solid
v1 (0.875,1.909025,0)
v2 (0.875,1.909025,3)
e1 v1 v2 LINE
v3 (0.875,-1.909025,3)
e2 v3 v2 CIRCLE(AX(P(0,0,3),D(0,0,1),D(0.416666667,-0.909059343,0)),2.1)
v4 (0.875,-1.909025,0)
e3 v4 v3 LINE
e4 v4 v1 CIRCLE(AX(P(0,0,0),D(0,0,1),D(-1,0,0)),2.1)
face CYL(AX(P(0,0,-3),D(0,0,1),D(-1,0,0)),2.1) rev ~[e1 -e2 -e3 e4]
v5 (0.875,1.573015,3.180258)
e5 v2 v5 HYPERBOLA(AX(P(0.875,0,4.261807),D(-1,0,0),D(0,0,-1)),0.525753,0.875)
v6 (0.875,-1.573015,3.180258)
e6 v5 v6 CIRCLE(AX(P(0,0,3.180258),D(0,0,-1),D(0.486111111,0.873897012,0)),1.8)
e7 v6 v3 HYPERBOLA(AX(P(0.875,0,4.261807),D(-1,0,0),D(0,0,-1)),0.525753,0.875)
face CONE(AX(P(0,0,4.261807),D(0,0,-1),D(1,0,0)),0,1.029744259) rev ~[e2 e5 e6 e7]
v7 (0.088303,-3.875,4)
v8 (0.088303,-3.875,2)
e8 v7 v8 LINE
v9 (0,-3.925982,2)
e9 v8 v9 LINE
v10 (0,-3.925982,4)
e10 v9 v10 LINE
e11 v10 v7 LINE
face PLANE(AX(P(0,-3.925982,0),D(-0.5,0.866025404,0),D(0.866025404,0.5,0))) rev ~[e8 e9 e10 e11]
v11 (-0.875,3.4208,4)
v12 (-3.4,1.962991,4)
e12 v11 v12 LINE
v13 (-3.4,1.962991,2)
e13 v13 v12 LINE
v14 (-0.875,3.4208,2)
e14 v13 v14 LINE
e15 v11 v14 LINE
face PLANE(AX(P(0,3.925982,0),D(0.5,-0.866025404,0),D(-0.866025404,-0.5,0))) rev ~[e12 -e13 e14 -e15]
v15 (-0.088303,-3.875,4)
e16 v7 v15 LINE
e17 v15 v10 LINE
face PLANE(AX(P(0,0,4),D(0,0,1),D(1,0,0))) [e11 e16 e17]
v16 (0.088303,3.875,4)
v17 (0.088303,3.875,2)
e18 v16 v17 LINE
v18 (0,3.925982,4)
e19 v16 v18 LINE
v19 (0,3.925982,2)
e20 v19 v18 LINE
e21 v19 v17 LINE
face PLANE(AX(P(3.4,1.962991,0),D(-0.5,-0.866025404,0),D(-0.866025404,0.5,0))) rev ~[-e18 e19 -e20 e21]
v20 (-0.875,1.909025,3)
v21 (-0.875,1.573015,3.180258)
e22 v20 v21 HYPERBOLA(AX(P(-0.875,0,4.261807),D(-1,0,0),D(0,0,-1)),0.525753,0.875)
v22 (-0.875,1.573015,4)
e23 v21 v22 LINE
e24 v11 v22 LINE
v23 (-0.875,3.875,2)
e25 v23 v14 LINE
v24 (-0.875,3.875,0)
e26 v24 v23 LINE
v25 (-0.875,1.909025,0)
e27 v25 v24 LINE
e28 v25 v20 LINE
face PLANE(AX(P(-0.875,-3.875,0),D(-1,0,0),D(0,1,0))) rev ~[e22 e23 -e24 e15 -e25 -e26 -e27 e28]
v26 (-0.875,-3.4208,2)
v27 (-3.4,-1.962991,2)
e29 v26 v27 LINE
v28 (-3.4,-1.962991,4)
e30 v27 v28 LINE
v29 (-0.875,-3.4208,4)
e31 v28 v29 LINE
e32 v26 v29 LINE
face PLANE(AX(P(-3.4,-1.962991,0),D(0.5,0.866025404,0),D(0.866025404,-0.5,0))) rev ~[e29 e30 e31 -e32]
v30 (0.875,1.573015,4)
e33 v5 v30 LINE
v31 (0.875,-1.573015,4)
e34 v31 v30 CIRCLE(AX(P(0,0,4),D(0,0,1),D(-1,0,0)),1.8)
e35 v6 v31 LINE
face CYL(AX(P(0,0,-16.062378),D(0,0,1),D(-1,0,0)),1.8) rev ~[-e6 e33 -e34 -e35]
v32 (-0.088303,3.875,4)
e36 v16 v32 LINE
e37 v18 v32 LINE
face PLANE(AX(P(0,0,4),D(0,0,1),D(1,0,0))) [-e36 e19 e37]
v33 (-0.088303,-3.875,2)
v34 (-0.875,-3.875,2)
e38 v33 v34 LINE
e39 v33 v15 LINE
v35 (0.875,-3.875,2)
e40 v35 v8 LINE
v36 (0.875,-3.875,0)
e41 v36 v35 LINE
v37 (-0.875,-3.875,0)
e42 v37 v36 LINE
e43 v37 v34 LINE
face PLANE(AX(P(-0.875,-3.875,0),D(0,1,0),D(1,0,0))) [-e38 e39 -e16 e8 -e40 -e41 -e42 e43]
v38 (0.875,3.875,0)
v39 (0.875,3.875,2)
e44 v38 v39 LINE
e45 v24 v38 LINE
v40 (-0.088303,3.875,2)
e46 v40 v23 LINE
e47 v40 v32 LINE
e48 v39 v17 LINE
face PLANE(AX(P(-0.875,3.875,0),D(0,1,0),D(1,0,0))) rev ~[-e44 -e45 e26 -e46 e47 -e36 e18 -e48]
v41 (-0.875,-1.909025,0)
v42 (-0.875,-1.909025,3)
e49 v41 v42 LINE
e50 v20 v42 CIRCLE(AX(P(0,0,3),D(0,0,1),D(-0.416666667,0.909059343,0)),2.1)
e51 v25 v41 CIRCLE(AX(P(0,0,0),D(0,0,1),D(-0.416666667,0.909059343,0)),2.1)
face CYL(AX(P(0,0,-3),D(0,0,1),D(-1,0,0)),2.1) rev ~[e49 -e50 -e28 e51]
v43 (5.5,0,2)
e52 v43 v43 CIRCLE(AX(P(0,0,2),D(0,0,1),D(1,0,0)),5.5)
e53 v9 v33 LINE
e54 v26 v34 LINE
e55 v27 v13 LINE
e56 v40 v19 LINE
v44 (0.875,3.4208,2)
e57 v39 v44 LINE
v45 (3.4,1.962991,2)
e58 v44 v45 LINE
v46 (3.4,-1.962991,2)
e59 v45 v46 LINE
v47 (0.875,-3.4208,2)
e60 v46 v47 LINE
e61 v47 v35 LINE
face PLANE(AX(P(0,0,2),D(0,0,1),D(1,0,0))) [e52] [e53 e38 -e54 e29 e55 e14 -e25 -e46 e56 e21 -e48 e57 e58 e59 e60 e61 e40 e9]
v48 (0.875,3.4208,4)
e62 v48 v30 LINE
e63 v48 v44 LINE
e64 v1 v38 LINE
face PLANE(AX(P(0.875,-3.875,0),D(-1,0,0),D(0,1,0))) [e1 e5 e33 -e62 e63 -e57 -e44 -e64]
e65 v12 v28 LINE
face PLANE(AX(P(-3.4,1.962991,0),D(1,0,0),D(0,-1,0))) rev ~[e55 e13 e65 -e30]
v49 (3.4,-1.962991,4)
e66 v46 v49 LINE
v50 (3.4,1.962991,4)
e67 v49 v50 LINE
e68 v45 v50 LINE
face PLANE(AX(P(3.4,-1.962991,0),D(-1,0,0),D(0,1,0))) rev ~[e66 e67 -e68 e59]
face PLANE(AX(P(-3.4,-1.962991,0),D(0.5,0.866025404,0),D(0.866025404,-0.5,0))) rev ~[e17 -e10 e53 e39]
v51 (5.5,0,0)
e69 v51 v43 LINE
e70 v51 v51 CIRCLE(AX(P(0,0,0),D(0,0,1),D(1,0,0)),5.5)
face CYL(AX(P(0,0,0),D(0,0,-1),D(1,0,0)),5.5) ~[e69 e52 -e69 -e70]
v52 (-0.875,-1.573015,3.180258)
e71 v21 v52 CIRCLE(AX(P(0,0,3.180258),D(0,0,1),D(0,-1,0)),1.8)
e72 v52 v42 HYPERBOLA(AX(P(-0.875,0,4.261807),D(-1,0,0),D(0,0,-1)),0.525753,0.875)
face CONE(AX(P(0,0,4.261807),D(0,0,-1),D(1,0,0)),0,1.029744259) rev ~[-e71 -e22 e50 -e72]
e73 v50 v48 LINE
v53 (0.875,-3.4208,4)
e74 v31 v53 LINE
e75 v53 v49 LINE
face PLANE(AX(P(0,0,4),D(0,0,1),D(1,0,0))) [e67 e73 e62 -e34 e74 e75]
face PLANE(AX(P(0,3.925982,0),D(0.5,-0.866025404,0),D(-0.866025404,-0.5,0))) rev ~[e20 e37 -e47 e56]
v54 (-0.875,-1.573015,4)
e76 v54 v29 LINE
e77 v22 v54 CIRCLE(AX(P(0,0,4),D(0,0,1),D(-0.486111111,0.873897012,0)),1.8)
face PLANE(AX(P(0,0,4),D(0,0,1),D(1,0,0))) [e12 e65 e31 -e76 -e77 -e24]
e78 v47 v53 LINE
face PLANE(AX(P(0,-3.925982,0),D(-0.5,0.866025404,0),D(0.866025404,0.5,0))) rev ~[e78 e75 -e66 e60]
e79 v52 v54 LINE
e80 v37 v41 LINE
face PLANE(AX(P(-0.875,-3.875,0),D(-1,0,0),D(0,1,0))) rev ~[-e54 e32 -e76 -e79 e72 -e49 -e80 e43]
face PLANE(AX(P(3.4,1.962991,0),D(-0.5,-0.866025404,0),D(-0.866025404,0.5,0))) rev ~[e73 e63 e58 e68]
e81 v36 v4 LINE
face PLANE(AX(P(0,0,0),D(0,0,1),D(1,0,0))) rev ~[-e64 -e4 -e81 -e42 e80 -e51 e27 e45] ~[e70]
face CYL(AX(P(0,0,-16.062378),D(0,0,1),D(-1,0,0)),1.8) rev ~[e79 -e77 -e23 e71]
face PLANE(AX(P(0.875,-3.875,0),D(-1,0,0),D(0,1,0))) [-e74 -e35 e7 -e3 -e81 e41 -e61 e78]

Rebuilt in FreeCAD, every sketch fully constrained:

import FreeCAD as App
import Part
import Sketcher
Q = App.Units.Quantity

doc = App.newDocument("Part")
body = doc.addObject("PartDesign::Body", "Body")

# Sketch on XY plane
sketch1 = body.newObject("Sketcher::SketchObject", "Sketch")
sketch1.AttachmentSupport = (doc.getObject("XY_Plane"), [""])
sketch1.MapMode = "FlatFace"
sketch1.addGeometry(Part.LineSegment(App.Vector(3.4, -2, 0), App.Vector(3.4, 2, 0)), False)
sketch1.addGeometry(Part.LineSegment(App.Vector(3.4, 2, 0), App.Vector(0, 3.9, 0)), False)
sketch1.addGeometry(Part.LineSegment(App.Vector(0, 3.9, 0), App.Vector(-3.4, 2, 0)), False)
sketch1.addGeometry(Part.LineSegment(App.Vector(-3.4, 2, 0), App.Vector(-3.4, -2, 0)), False)
sketch1.addGeometry(Part.LineSegment(App.Vector(-3.4, -2, 0), App.Vector(0, -3.9, 0)), False)
sketch1.addGeometry(Part.LineSegment(App.Vector(0, -3.9, 0), App.Vector(3.4, -2, 0)), False)
sketch1.addConstraint(Sketcher.Constraint("Coincident", 0, 2, 1, 1))
sketch1.addConstraint(Sketcher.Constraint("Coincident", 1, 2, 2, 1))
sketch1.addConstraint(Sketcher.Constraint("Coincident", 2, 2, 3, 1))
sketch1.addConstraint(Sketcher.Constraint("Coincident", 3, 2, 4, 1))
sketch1.addConstraint(Sketcher.Constraint("Coincident", 4, 2, 5, 1))
sketch1.addConstraint(Sketcher.Constraint("Coincident", 5, 2, 0, 1))
sketch1.addConstraint(Sketcher.Constraint("Vertical", 0))
sketch1.addConstraint(Sketcher.Constraint("Vertical", 3))
sketch1.addConstraint(Sketcher.Constraint("Symmetric", 0, 2, 3, 2, -1, 1))
sketch1.addConstraint(Sketcher.Constraint("Symmetric", 1, 2, 4, 2, -1, 1))
sketch1.addConstraint(Sketcher.Constraint("PointOnObject", 1, 2, -2))
sketch1.addConstraint(Sketcher.Constraint("Parallel", 2, 5))
sketch1.addConstraint(Sketcher.Constraint("Horizontal", 0, 2, 2, 2))
sketch1.addConstraint(Sketcher.Constraint("Angle", 1, Q("150 deg")))
sketch1.addConstraint(Sketcher.Constraint("DistanceX", -1, 1, 0, 2, Q("3.4 mm")))
sketch1.addConstraint(Sketcher.Constraint("DistanceY", 0, 1, 0, 2, Q("3.925982 mm")))
pad1 = body.newObject("PartDesign::Pad", "Pad")
pad1.Profile = sketch1
pad1.Length = 4

# Sketch on XY plane
sketch2 = body.newObject("Sketcher::SketchObject", "Sketch001")
sketch2.AttachmentSupport = (doc.getObject("XY_Plane"), [""])
sketch2.MapMode = "FlatFace"
sketch2.addGeometry(Part.Circle(App.Vector(0, 0, 0), App.Vector(0, 0, 1), 5.5), False)
sketch2.addGeometry(Part.LineSegment(App.Vector(-3.4, 2, 0), App.Vector(0, 3.9, 0)), False)
sketch2.addGeometry(Part.LineSegment(App.Vector(0, 3.9, 0), App.Vector(3.4, 2, 0)), False)
sketch2.addGeometry(Part.LineSegment(App.Vector(3.4, 2, 0), App.Vector(3.4, -2, 0)), False)
sketch2.addGeometry(Part.LineSegment(App.Vector(3.4, -2, 0), App.Vector(0, -3.9, 0)), False)
sketch2.addGeometry(Part.LineSegment(App.Vector(0, -3.9, 0), App.Vector(-3.4, -2, 0)), False)
sketch2.addGeometry(Part.LineSegment(App.Vector(-3.4, -2, 0), App.Vector(-3.4, 2, 0)), False)
sketch2.addConstraint(Sketcher.Constraint("Coincident", 1, 2, 2, 1))
sketch2.addConstraint(Sketcher.Constraint("Coincident", 2, 2, 3, 1))
sketch2.addConstraint(Sketcher.Constraint("Coincident", 3, 2, 4, 1))
sketch2.addConstraint(Sketcher.Constraint("Coincident", 4, 2, 5, 1))
sketch2.addConstraint(Sketcher.Constraint("Coincident", 5, 2, 6, 1))
sketch2.addConstraint(Sketcher.Constraint("Coincident", 6, 2, 1, 1))
sketch2.addConstraint(Sketcher.Constraint("Vertical", 3))
sketch2.addConstraint(Sketcher.Constraint("Vertical", 6))
sketch2.addConstraint(Sketcher.Constraint("Coincident", 0, 3, -1, 1))
sketch2.addConstraint(Sketcher.Constraint("Symmetric", 1, 2, 4, 2, -1, 1))
sketch2.addConstraint(Sketcher.Constraint("Symmetric", 2, 2, 5, 2, -1, 1))
sketch2.addConstraint(Sketcher.Constraint("PointOnObject", 1, 2, -2))
sketch2.addConstraint(Sketcher.Constraint("Parallel", 1, 4))
sketch2.addConstraint(Sketcher.Constraint("Horizontal", 3, 2, 5, 2))
sketch2.addConstraint(Sketcher.Constraint("Diameter", 0, Q("11 mm")))
sketch2.addConstraint(Sketcher.Constraint("Angle", 1, Q("30 deg")))
sketch2.addConstraint(Sketcher.Constraint("DistanceX", -1, 1, 2, 2, Q("3.4 mm")))
sketch2.addConstraint(Sketcher.Constraint("DistanceY", 3, 2, 3, 1, Q("3.925982 mm")))
pad2 = body.newObject("PartDesign::Pad", "Pad001")
pad2.Profile = sketch2
pad2.Length = 2

# Sketch on XY plane
sketch3 = body.newObject("Sketcher::SketchObject", "Sketch002")
sketch3.AttachmentSupport = (doc.getObject("XY_Plane"), [""])
sketch3.MapMode = "FlatFace"
sketch3.addGeometry(Part.LineSegment(App.Vector(-0.9, 3.9, 0), App.Vector(-0.9, -3.9, 0)), False)
sketch3.addGeometry(Part.LineSegment(App.Vector(-0.9, -3.9, 0), App.Vector(0.9, -3.9, 0)), False)
sketch3.addGeometry(Part.LineSegment(App.Vector(0.9, -3.9, 0), App.Vector(0.9, 3.9, 0)), False)
sketch3.addGeometry(Part.LineSegment(App.Vector(0.9, 3.9, 0), App.Vector(-0.9, 3.9, 0)), False)
sketch3.addConstraint(Sketcher.Constraint("Coincident", 0, 2, 1, 1))
sketch3.addConstraint(Sketcher.Constraint("Coincident", 1, 2, 2, 1))
sketch3.addConstraint(Sketcher.Constraint("Coincident", 2, 2, 3, 1))
sketch3.addConstraint(Sketcher.Constraint("Coincident", 3, 2, 0, 1))
sketch3.addConstraint(Sketcher.Constraint("Vertical", 0))
sketch3.addConstraint(Sketcher.Constraint("Horizontal", 1))
sketch3.addConstraint(Sketcher.Constraint("Vertical", 2))
sketch3.addConstraint(Sketcher.Constraint("Horizontal", 3))
sketch3.addConstraint(Sketcher.Constraint("Symmetric", 0, 2, 2, 2, -1, 1))
sketch3.addConstraint(Sketcher.Constraint("DistanceX", 1, 1, 1, 2, Q("1.75 mm")))
sketch3.addConstraint(Sketcher.Constraint("DistanceY", 0, 2, 0, 1, Q("7.75 mm")))
pocket1 = body.newObject("PartDesign::Pocket", "Pocket")
pocket1.Profile = sketch3
pocket1.Length = 5
pocket1.Reversed = True

# Sketch on XY plane
sketch4 = body.newObject("Sketcher::SketchObject", "Sketch003")
sketch4.AttachmentSupport = (doc.getObject("XY_Plane"), [""])
sketch4.MapMode = "FlatFace"
sketch4.addGeometry(Part.Circle(App.Vector(0, 0, 0), App.Vector(0, 0, 1), 1.8), False)
sketch4.addConstraint(Sketcher.Constraint("Coincident", 0, 3, -1, 1))
sketch4.addConstraint(Sketcher.Constraint("Diameter", 0, Q("3.6 mm")))
doc.recompute()
hole = body.newObject("PartDesign::Hole", "Hole")
hole.Profile = sketch4
hole.ThreadType = "None"
hole.Diameter = 3.6
hole.DepthType = "ThroughAll"
hole.Reversed = True

# Sketch on XY plane
sketch5 = body.newObject("Sketcher::SketchObject", "Sketch004")
sketch5.AttachmentSupport = (doc.getObject("XY_Plane"), [""])
sketch5.MapMode = "FlatFace"
sketch5.addGeometry(Part.Circle(App.Vector(0, 0, 0), App.Vector(0, 0, 1), 2.1), False)
sketch5.addConstraint(Sketcher.Constraint("Coincident", 0, 3, -1, 1))
sketch5.addConstraint(Sketcher.Constraint("Diameter", 0, Q("4.2 mm")))
doc.recompute()
hole2 = body.newObject("PartDesign::Hole", "Hole001")
hole2.Profile = sketch5
hole2.ThreadType = "None"
hole2.Diameter = 4.2
hole2.DepthType = "Dimension"
hole2.Depth = 3
hole2.DrillPoint = "Angled"
hole2.DrillPointAngle = 118
hole2.Reversed = True

doc.recompute()
